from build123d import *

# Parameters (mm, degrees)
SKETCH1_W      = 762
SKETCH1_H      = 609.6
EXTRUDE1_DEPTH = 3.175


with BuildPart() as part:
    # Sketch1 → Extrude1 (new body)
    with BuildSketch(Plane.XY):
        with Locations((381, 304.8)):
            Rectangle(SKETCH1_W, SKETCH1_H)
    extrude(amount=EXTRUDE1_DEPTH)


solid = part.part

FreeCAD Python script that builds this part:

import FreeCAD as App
import Part
import Sketcher
Q = App.Units.Quantity

doc = App.newDocument("Part")
body = doc.addObject("PartDesign::Body", "Body")

sketch1 = body.newObject("Sketcher::SketchObject", "Sketch")
sketch1.AttachmentSupport = (doc.getObject("XY_Plane"), [""])
sketch1.MapMode = "FlatFace"
sketch1.addGeometry([
    Part.LineSegment(App.Vector(0, 610, 0), App.Vector(0, 0, 0)),
    Part.LineSegment(App.Vector(0, 0, 0), App.Vector(762, 0, 0)),
    Part.LineSegment(App.Vector(762, 0, 0), App.Vector(762, 610, 0)),
    Part.LineSegment(App.Vector(762, 610, 0), App.Vector(0, 610, 0)),
], False)
sketch1.addConstraint([
    Sketcher.Constraint("Coincident", 0, 2, 1, 1),
    Sketcher.Constraint("Coincident", 1, 2, 2, 1),
    Sketcher.Constraint("Coincident", 2, 2, 3, 1),
    Sketcher.Constraint("Coincident", 3, 2, 0, 1),
    Sketcher.Constraint("Vertical", 0),
    Sketcher.Constraint("Horizontal", 1),
    Sketcher.Constraint("Vertical", 2),
    Sketcher.Constraint("Horizontal", 3),
    Sketcher.Constraint("Coincident", 0, 2, -1, 1),
    Sketcher.Constraint("DistanceX", 1, 1, 1, 2, Q("30 in")),
    Sketcher.Constraint("DistanceY", 0, 2, 0, 1, Q("24 in")),
])
pad1 = body.newObject("PartDesign::Pad", "Pad")
pad1.Profile = sketch1
pad1.Length = Q("0.125 in")

doc.recompute()
